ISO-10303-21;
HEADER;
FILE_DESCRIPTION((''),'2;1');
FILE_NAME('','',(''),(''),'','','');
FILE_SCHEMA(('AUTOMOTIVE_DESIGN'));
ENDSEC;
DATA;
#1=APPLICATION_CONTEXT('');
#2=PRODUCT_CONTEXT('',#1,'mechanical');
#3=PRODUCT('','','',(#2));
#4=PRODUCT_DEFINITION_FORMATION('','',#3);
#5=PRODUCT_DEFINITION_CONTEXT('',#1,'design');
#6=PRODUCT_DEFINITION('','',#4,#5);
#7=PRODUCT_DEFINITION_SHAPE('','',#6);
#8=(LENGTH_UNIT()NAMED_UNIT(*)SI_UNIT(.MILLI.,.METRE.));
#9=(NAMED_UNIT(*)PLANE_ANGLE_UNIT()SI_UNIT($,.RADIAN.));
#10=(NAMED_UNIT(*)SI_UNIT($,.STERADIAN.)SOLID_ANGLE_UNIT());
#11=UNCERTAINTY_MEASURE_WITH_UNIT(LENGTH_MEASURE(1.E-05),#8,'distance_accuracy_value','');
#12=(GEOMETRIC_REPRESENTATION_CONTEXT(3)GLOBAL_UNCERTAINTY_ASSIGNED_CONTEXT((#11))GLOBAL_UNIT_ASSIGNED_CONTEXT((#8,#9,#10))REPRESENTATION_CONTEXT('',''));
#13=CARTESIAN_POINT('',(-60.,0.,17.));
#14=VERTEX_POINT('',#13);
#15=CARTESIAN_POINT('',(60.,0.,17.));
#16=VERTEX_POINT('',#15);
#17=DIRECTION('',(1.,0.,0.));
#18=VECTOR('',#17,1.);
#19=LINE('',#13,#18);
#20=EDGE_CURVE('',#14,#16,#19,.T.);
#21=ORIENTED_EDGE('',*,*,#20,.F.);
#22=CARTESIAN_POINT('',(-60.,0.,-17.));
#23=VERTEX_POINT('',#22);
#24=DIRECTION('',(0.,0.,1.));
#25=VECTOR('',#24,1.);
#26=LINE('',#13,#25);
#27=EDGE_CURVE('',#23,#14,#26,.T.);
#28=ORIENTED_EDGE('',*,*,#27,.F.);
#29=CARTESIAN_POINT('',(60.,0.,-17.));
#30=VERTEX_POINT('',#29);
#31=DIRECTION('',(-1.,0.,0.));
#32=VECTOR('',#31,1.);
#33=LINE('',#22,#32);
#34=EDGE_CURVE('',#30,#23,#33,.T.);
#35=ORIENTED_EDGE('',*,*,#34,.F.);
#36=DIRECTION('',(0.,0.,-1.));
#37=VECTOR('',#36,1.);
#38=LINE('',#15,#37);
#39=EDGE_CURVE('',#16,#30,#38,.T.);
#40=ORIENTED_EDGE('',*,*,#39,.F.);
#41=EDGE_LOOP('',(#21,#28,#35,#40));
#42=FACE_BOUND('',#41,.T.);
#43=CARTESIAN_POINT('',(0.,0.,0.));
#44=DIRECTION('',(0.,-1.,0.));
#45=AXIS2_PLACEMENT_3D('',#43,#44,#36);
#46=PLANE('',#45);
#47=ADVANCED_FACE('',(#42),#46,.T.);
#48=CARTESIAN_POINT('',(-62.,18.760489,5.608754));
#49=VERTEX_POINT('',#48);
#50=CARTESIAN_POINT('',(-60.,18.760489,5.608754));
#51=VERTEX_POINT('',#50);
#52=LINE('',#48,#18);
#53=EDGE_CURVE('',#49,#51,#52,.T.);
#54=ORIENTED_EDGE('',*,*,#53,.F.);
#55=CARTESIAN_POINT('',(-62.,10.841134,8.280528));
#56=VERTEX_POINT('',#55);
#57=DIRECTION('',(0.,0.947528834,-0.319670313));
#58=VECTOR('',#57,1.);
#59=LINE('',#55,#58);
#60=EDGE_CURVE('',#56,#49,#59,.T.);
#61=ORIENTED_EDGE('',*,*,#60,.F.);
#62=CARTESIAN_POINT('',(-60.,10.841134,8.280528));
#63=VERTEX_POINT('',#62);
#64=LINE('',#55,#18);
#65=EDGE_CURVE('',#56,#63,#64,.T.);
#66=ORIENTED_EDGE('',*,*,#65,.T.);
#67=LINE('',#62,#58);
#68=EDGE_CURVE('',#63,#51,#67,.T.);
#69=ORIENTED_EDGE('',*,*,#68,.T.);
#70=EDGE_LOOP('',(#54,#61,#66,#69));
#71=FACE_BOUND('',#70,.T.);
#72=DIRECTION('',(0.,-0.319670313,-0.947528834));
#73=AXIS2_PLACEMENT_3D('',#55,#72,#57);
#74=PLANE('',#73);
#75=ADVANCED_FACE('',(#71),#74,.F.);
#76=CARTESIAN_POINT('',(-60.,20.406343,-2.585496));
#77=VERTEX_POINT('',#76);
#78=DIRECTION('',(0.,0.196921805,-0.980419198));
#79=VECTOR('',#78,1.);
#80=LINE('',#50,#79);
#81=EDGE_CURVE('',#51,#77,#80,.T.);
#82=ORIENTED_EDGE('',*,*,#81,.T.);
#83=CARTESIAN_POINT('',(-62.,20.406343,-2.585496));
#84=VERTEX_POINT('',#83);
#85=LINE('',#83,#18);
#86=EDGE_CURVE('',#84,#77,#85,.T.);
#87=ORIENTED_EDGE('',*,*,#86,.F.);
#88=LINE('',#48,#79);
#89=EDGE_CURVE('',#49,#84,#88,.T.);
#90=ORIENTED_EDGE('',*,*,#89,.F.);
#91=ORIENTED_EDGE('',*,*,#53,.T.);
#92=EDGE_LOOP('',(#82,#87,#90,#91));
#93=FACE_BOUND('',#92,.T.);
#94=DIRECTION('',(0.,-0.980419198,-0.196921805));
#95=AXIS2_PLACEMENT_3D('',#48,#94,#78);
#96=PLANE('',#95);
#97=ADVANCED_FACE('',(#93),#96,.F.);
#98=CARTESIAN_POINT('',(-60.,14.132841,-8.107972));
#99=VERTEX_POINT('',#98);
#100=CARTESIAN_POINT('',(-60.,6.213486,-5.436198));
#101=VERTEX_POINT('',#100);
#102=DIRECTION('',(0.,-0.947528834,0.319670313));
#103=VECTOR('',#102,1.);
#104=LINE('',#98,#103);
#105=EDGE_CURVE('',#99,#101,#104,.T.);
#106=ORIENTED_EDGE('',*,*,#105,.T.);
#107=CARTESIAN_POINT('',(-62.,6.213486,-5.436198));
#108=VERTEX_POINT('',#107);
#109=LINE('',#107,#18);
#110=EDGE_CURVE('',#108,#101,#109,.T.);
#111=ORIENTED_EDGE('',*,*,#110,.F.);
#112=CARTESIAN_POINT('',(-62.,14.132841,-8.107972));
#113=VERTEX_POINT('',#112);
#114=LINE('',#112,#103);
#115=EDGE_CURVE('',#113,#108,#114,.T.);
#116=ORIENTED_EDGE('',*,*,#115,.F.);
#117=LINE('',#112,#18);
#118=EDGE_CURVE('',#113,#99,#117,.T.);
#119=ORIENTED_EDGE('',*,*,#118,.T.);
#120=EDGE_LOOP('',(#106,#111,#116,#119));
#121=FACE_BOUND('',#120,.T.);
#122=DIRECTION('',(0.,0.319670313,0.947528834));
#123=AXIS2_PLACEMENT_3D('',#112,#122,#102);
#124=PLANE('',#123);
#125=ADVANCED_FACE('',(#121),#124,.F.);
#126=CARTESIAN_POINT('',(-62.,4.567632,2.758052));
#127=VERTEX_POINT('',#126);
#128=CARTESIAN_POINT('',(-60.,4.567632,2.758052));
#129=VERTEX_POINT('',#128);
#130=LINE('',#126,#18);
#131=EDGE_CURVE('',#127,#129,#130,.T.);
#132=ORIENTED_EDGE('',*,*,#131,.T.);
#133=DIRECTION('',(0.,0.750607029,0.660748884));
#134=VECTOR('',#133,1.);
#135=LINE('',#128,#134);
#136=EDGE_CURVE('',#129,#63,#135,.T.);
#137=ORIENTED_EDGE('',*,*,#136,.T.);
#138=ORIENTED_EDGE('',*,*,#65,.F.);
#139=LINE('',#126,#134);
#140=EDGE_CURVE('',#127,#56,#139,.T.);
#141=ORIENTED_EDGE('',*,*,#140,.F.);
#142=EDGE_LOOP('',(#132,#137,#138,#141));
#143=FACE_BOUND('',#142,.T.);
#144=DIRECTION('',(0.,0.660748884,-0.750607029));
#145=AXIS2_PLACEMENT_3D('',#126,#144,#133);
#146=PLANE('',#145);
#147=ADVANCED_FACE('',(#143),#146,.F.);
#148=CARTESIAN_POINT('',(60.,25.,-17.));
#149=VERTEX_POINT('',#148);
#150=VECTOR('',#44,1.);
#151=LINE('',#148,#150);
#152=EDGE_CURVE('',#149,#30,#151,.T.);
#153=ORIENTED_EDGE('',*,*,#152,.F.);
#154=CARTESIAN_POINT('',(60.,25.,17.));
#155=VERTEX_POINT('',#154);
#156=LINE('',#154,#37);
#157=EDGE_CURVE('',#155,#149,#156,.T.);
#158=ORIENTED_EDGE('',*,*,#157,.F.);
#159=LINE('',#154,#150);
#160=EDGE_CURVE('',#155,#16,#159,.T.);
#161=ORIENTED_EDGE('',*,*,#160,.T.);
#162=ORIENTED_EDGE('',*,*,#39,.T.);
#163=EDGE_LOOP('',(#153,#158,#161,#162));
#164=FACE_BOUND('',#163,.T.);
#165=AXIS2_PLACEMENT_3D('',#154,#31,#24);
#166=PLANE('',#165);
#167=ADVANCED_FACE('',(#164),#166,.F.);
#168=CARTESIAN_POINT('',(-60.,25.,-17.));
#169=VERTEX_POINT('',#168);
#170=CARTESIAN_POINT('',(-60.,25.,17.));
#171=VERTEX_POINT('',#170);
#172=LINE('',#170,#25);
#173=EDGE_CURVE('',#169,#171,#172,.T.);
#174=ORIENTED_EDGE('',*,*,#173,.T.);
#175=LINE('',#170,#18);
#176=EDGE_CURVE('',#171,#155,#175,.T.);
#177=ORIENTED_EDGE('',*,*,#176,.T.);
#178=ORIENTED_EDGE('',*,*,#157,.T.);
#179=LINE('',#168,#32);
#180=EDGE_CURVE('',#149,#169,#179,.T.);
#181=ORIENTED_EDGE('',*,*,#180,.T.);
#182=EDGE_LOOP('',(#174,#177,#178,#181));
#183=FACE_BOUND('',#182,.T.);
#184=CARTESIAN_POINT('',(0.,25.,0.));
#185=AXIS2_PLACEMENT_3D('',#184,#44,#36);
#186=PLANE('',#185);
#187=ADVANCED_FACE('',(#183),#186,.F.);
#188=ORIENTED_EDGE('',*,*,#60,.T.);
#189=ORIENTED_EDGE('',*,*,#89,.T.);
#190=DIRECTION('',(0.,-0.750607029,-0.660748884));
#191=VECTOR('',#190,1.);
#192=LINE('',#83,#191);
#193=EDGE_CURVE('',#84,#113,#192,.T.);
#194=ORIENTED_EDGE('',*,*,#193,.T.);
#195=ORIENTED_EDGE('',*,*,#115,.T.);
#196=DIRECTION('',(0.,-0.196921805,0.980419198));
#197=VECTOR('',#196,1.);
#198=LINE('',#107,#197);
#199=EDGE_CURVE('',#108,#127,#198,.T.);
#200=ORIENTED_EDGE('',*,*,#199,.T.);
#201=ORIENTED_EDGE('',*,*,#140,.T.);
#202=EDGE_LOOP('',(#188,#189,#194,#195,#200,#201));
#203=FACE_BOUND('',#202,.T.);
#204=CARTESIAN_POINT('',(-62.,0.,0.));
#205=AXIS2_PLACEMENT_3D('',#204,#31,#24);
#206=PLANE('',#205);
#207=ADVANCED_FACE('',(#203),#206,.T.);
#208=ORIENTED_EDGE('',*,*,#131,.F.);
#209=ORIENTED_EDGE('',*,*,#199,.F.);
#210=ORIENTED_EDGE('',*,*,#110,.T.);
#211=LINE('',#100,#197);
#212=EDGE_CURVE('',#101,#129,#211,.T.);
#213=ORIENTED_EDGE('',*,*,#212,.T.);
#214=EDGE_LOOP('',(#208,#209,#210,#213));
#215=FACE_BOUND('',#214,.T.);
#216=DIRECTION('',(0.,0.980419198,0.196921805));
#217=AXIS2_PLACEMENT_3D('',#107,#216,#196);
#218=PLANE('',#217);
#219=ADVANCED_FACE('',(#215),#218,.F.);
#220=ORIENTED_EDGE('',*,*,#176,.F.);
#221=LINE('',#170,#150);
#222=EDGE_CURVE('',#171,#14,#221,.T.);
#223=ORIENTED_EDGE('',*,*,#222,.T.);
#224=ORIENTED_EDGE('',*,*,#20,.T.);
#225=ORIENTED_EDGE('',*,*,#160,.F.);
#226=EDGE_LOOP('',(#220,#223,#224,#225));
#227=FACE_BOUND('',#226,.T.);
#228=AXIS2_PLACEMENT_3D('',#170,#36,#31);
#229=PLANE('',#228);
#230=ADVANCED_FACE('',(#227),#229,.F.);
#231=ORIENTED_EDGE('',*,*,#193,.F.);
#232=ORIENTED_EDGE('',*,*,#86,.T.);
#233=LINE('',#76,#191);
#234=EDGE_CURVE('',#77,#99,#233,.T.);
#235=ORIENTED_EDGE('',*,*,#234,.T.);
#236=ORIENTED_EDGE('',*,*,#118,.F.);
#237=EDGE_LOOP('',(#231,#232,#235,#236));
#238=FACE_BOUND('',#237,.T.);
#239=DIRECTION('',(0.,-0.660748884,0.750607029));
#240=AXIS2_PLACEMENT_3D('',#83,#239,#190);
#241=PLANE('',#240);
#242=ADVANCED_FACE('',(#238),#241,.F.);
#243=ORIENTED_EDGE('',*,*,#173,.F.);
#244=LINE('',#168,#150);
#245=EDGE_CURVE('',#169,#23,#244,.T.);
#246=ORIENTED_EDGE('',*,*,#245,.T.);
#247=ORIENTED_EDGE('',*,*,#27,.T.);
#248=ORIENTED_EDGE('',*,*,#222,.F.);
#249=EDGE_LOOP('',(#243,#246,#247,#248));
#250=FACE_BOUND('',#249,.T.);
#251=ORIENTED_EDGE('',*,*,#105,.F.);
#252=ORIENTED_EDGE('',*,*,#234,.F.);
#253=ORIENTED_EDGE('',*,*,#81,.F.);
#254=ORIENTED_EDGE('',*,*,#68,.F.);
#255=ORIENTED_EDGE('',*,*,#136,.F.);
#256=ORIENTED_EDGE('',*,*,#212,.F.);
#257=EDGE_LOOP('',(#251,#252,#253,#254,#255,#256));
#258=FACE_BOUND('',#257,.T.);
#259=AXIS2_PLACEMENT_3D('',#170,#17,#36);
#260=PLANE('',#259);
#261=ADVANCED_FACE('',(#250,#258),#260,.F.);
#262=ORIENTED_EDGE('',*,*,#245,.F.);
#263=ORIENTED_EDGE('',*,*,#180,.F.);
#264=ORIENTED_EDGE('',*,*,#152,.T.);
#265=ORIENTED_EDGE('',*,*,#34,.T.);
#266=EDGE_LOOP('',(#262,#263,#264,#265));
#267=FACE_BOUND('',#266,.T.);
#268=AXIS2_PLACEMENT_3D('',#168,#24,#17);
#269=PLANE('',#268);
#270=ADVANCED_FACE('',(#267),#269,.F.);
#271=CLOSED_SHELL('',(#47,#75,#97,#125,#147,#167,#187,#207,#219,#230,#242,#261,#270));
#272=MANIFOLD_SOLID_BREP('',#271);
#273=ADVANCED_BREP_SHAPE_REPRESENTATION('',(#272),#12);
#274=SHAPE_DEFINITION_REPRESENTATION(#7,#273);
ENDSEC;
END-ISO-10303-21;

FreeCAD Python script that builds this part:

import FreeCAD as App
import Part
import Sketcher
from FreeCAD import Vector


def add_polygon(sketch, points):
    """Adds a closed chain of lines whose ends are joined by coincident constraints."""
    first, n = sketch.GeometryCount, len(points)
    for a, b in zip(points, points[1:] + points[:1]):
        sketch.addGeometry(Part.LineSegment(App.Vector(*a, 0), App.Vector(*b, 0)), False)
    for i in range(n):
        sketch.addConstraint(Sketcher.Constraint("Coincident", first + i, 2, first + (i + 1) % n, 1))

doc = App.newDocument("Part")
params = doc.addObject("Spreadsheet::Sheet", "Params")
for row, (alias, value) in enumerate([
    ("sketch1_width", "120 mm"),
    ("sketch1_height", "34 mm"),
    ("pad1_length", "25 mm"),
    ("pad2_length", "2 mm"),
], start=1):
    params.set(f"A{row}", alias)
    params.set(f"B{row}", "=" + value)
    params.setAlias(f"B{row}", alias)

body = doc.addObject("PartDesign::Body", "Body")

sketch1 = body.newObject("Sketcher::SketchObject", "Sketch")
sketch1.AttachmentSupport = (doc.getObject("XZ_Plane"), [""])
sketch1.MapMode = "FlatFace"
add_polygon(sketch1, [(-60, -17), (-60, 17), (60, 17), (60, -17)])
sketch1.addConstraint([
    Sketcher.Constraint("Vertical", 0),
    Sketcher.Constraint("Horizontal", 1),
    Sketcher.Constraint("Vertical", 2),
    Sketcher.Constraint("Horizontal", 3),
    Sketcher.Constraint("Symmetric", 0, 2, 2, 2, -1, 1),
    Sketcher.Constraint("DistanceX", 1, 1, 1, 2, 120.0),
    Sketcher.Constraint("DistanceY", 0, 1, 0, 2, 34.0),
])
sketch1.setExpression("Constraints[9]", "Params.sketch1_width")
sketch1.setExpression("Constraints[10]", "Params.sketch1_height")
pad1 = body.newObject("PartDesign::Pad", "Pad")
pad1.Profile = sketch1
pad1.setExpression("Length", "Params.pad1_length")
pad1.Reversed = True

sketch2 = body.newObject("Sketcher::SketchObject", "Sketch001")
sketch2.AttachmentSupport = (doc.getObject("YZ_Plane"), [""])
sketch2.MapMode = "FlatFace"
sketch2.AttachmentOffset = App.Placement(Vector(0, 0, -60), App.Rotation())
add_polygon(sketch2, [(11, 8), (19, 6), (20, -3), (14, -8), (6, -5), (5, 3)])
sketch2.addConstraint([
    Sketcher.Constraint("Parallel", 0, 3),
    Sketcher.Constraint("Parallel", 1, 4),
    Sketcher.Constraint("Parallel", 2, 5),
    Sketcher.Constraint("Equal", 0, 1),
    Sketcher.Constraint("Equal", 1, 2),
    Sketcher.Constraint("Equal", 2, 3),
    Sketcher.Constraint("DistanceX", 2, 2, 1, 2, 6.273502),
    Sketcher.Constraint("DistanceY", 2, 2, 5, 2, 16.3885),
    Sketcher.Constraint("DistanceX", -1, 1, 0, 2, 18.760489),
    Sketcher.Constraint("DistanceX", -1, 1, 2, 2, 14.132841),
    Sketcher.Constraint("DistanceY", 2, 2, -1, 1, 8.107972),
    Sketcher.Constraint("DistanceX", -1, 1, 4, 2, 4.567632),
])
pad2 = body.newObject("PartDesign::Pad", "Pad001")
pad2.Profile = sketch2
pad2.setExpression("Length", "Params.pad2_length")
pad2.Reversed = True

doc.recompute()
